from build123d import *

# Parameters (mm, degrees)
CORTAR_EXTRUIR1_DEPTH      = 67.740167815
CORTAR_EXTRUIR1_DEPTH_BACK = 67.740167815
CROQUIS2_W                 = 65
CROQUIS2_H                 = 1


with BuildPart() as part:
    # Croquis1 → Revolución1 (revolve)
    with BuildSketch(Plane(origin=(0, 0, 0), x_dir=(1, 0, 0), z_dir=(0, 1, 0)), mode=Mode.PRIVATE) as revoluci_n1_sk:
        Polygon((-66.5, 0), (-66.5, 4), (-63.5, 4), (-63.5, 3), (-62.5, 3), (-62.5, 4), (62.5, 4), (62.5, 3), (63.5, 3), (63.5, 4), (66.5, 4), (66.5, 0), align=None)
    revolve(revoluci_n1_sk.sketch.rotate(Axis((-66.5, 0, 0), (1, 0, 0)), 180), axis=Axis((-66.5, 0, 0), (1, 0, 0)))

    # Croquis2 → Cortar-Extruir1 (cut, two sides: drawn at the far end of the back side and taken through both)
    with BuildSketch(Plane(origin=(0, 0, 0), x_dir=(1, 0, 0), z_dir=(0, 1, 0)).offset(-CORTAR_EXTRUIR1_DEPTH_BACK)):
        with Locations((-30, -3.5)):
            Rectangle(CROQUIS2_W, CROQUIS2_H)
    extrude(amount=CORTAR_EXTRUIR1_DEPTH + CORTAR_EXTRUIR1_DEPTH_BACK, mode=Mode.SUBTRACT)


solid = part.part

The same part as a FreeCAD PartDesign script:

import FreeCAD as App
import Part
import Sketcher
from FreeCAD import Vector

doc = App.newDocument("Part")
params = doc.addObject("Spreadsheet::Sheet", "Params")
for row, (alias, value) in enumerate([
    ("sketch1_width", "133 mm"),
    ("sketch1_width2", "3 mm"),
    ("sketch1_width3", "1 mm"),
    ("sketch1_height", "4 mm"),
    ("revolution_angle", "360 deg"),
    ("sketch2_width", "65 mm"),
    ("sketch2_height", "1 mm"),
], start=1):
    params.set(f"A{row}", alias)
    params.set(f"B{row}", "=" + value)
    params.setAlias(f"B{row}", alias)

body = doc.addObject("PartDesign::Body", "Body")

# Sketch on XZ plane
sketch1 = body.newObject("Sketcher::SketchObject", "Sketch")
sketch1.AttachmentSupport = (doc.getObject("XZ_Plane"), [""])
sketch1.MapMode = "FlatFace"
sketch1.addGeometry([
    Part.LineSegment(Vector(-66.5, -4, 0), Vector(-66.5, 0, 0)),  # 0
    Part.LineSegment(Vector(-66.5, 0, 0), Vector(66.5, 0, 0)),  # 1
    Part.LineSegment(Vector(66.5, 0, 0), Vector(66.5, -4, 0)),  # 2
    Part.LineSegment(Vector(66.5, -4, 0), Vector(63.5, -4, 0)),  # 3
    Part.LineSegment(Vector(63.5, -4, 0), Vector(63.5, -3, 0)),  # 4
    Part.LineSegment(Vector(63.5, -3, 0), Vector(62.5, -3, 0)),  # 5
    Part.LineSegment(Vector(62.5, -3, 0), Vector(62.5, -4, 0)),  # 6
    Part.LineSegment(Vector(62.5, -4, 0), Vector(-62.5, -4, 0)),  # 7
    Part.LineSegment(Vector(-62.5, -4, 0), Vector(-62.5, -3, 0)),  # 8
    Part.LineSegment(Vector(-62.5, -3, 0), Vector(-63.5, -3, 0)),  # 9
    Part.LineSegment(Vector(-63.5, -3, 0), Vector(-63.5, -4, 0)),  # 10
    Part.LineSegment(Vector(-63.5, -4, 0), Vector(-66.5, -4, 0)),  # 11
], False)
sketch1.addConstraint([
    Sketcher.Constraint("Coincident", 0, 2, 1, 1),
    Sketcher.Constraint("Coincident", 1, 2, 2, 1),
    Sketcher.Constraint("Coincident", 2, 2, 3, 1),
    Sketcher.Constraint("Coincident", 3, 2, 4, 1),
    Sketcher.Constraint("Coincident", 4, 2, 5, 1),
    Sketcher.Constraint("Coincident", 5, 2, 6, 1),
    Sketcher.Constraint("Coincident", 6, 2, 7, 1),
    Sketcher.Constraint("Coincident", 7, 2, 8, 1),
    Sketcher.Constraint("Coincident", 8, 2, 9, 1),
    Sketcher.Constraint("Coincident", 9, 2, 10, 1),
    Sketcher.Constraint("Coincident", 10, 2, 11, 1),
    Sketcher.Constraint("Coincident", 11, 2, 0, 1),
    Sketcher.Constraint("Vertical", 0),
    Sketcher.Constraint("Horizontal", 1),
    Sketcher.Constraint("Vertical", 2),
    Sketcher.Constraint("Horizontal", 3),
    Sketcher.Constraint("Vertical", 4),
    Sketcher.Constraint("Horizontal", 5),
    Sketcher.Constraint("Vertical", 6),
    Sketcher.Constraint("Horizontal", 7),
    Sketcher.Constraint("Vertical", 8),
    Sketcher.Constraint("Horizontal", 9),
    Sketcher.Constraint("Vertical", 10),
    Sketcher.Constraint("Horizontal", 11),
    Sketcher.Constraint("Symmetric", 0, 2, 1, 2, -1, 1),
    Sketcher.Constraint("Symmetric", 5, 2, 8, 2, -2),
    Sketcher.Constraint("Symmetric", 3, 2, 10, 2, -2),
    Sketcher.Constraint("Horizontal", 3, 2, 6, 2),
    Sketcher.Constraint("Equal", 9, 4),
    Sketcher.Constraint("DistanceX", 1, 1, 1, 2, 133.0),
    Sketcher.Constraint("DistanceX", 3, 2, 3, 1, 3.0),
    Sketcher.Constraint("DistanceX", 5, 2, 5, 1, 1.0),
    Sketcher.Constraint("DistanceY", 0, 1, 0, 2, 4.0),
])
sketch1.setExpression("Constraints[29]", "Params.sketch1_width")
sketch1.setExpression("Constraints[30]", "Params.sketch1_width2")
sketch1.setExpression("Constraints[31]", "Params.sketch1_width3")
sketch1.setExpression("Constraints[32]", "Params.sketch1_height")
revolution = body.newObject("PartDesign::Revolution", "Revolution")
revolution.Profile = sketch1
revolution.ReferenceAxis = (sketch1, ["H_Axis"])
revolution.setExpression("Angle", "Params.revolution_angle")

# Sketch on XZ plane
sketch2 = body.newObject("Sketcher::SketchObject", "Sketch001")
sketch2.AttachmentSupport = (doc.getObject("XZ_Plane"), [""])
sketch2.MapMode = "FlatFace"
sketch2.addGeometry([
    Part.LineSegment(Vector(-62.5, 3, 0), Vector(-62.5, 4, 0)),
    Part.LineSegment(Vector(-62.5, 4, 0), Vector(2.5, 4, 0)),
    Part.LineSegment(Vector(2.5, 4, 0), Vector(2.5, 3, 0)),
    Part.LineSegment(Vector(2.5, 3, 0), Vector(-62.5, 3, 0)),
], False)
sketch2.addConstraint([
    Sketcher.Constraint("Coincident", 0, 2, 1, 1),
    Sketcher.Constraint("Coincident", 1, 2, 2, 1),
    Sketcher.Constraint("Coincident", 2, 2, 3, 1),
    Sketcher.Constraint("Coincident", 3, 2, 0, 1),
    Sketcher.Constraint("Vertical", 0),
    Sketcher.Constraint("Horizontal", 1),
    Sketcher.Constraint("Vertical", 2),
    Sketcher.Constraint("Horizontal", 3),
    Sketcher.Constraint("DistanceX", 1, 1, 1, 2, 65.0),
    Sketcher.Constraint("DistanceY", 0, 1, 0, 2, 1.0),
    Sketcher.Constraint("DistanceY", -1, 1, 0, 2, 4.0),
    Sketcher.Constraint("DistanceX", 0, 2, -1, 1, 62.5),
])
sketch2.setExpression("Constraints[8]", "Params.sketch2_width")
sketch2.setExpression("Constraints[9]", "Params.sketch2_height")
pocket1 = body.newObject("PartDesign::Pocket", "Pocket")
pocket1.Profile = sketch2
pocket1.Type = "ThroughAll"
pocket1.Midplane = True

doc.recompute()
